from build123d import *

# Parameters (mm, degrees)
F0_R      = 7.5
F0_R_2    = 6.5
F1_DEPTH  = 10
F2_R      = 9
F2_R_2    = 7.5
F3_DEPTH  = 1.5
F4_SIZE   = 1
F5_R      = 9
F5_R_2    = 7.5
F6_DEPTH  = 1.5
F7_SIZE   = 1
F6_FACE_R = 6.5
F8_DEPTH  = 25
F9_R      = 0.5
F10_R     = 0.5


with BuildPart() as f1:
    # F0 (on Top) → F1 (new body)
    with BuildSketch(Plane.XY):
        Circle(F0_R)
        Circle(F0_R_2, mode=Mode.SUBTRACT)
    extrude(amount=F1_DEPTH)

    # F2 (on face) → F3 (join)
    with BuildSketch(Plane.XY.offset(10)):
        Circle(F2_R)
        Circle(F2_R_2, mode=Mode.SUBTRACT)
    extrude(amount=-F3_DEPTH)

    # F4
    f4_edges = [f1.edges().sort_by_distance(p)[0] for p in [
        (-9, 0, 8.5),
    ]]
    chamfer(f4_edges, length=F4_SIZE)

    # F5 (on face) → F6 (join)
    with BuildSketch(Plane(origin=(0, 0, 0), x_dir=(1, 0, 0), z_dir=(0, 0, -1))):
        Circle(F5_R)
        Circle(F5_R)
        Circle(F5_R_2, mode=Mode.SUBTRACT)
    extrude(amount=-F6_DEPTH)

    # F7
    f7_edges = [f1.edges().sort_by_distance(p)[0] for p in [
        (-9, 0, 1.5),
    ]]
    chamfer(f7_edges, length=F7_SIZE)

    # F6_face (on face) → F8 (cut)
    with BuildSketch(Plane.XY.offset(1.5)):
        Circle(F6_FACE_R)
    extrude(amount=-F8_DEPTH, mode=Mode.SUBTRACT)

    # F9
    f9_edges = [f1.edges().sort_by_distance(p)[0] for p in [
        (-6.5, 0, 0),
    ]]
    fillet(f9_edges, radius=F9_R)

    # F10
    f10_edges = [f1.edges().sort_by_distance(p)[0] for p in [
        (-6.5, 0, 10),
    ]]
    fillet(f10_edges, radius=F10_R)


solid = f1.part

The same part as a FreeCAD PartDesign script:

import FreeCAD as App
import Part
import Sketcher
Q = App.Units.Quantity


def edges_at(feature, points):
    """Names of the edges that pass closest to the given points."""
    edges = feature.Shape.Edges
    near = lambda p: min(range(len(edges)), key=lambda i: edges[i].distToShape(Part.Vertex(*p))[0])
    return sorted({f"Edge{near(p) + 1}" for p in points})

doc = App.newDocument("Part")
body = doc.addObject("PartDesign::Body", "Body")

sketch1 = body.newObject("Sketcher::SketchObject", "Sketch")
sketch1.AttachmentSupport = (doc.getObject("XY_Plane"), [""])
sketch1.MapMode = "FlatFace"
sketch1.addGeometry([
    Part.Circle(App.Vector(0, 0, 0), App.Vector(0, 0, 1), 7.5),
    Part.Circle(App.Vector(0, 0, 0), App.Vector(0, 0, 1), 6.5),
], False)
sketch1.addConstraint([
    Sketcher.Constraint("Coincident", 0, 3, -1, 1),
    Sketcher.Constraint("Coincident", 1, 3, -1, 1),
    Sketcher.Constraint("Diameter", 0, Q("15 mm")),
    Sketcher.Constraint("Diameter", 1, Q("13 mm")),
])
pad1 = body.newObject("PartDesign::Pad", "Pad")
pad1.Profile = sketch1
pad1.Length = 10

sketch2 = body.newObject("Sketcher::SketchObject", "Sketch001")
sketch2.AttachmentSupport = (doc.getObject("XY_Plane"), [""])
sketch2.MapMode = "FlatFace"
sketch2.AttachmentOffset = App.Placement(App.Vector(0, 0, 10), App.Rotation())
sketch2.addGeometry([
    Part.Circle(App.Vector(0, 0, 0), App.Vector(0, 0, 1), 9),
    Part.Circle(App.Vector(0, 0, 0), App.Vector(0, 0, 1), 7.5),
], False)
sketch2.addConstraint([
    Sketcher.Constraint("Coincident", 0, 3, -1, 1),
    Sketcher.Constraint("Coincident", 1, 3, -1, 1),
    Sketcher.Constraint("Diameter", 0, Q("18 mm")),
    Sketcher.Constraint("Diameter", 1, Q("15 mm")),
])
pad2 = body.newObject("PartDesign::Pad", "Pad001")
pad2.Profile = sketch2
pad2.Length = 1.5
pad2.Reversed = True
doc.recompute()

chamfer = body.newObject("PartDesign::Chamfer", "Chamfer")
chamfer.Base = (pad2, edges_at(pad2, [(-9, 0, 8.5)]))
chamfer.Size = 1

sketch3 = body.newObject("Sketcher::SketchObject", "Sketch002")
sketch3.AttachmentSupport = (doc.getObject("XY_Plane"), [""])
sketch3.MapMode = "FlatFace"
sketch3.addGeometry([
    Part.Circle(App.Vector(0, 0, 0), App.Vector(0, 0, 1), 9),
    Part.Circle(App.Vector(0, 0, 0), App.Vector(0, 0, 1), 7.5),
], False)
sketch3.addConstraint([
    Sketcher.Constraint("Coincident", 0, 3, -1, 1),
    Sketcher.Constraint("Coincident", 1, 3, -1, 1),
    Sketcher.Constraint("Diameter", 0, Q("18 mm")),
    Sketcher.Constraint("Diameter", 1, Q("15 mm")),
])
pad3 = body.newObject("PartDesign::Pad", "Pad002")
pad3.Profile = sketch3
pad3.Length = 1.5
doc.recompute()

chamfer2 = body.newObject("PartDesign::Chamfer", "Chamfer001")
chamfer2.Base = (pad3, edges_at(pad3, [(-9, 0, 1.5)]))
chamfer2.Size = 1

sketch4 = body.newObject("Sketcher::SketchObject", "Sketch003")
sketch4.AttachmentSupport = (doc.getObject("XY_Plane"), [""])
sketch4.MapMode = "FlatFace"
sketch4.AttachmentOffset = App.Placement(App.Vector(0, 0, 1.5), App.Rotation())
sketch4.addGeometry(Part.Circle(App.Vector(0, 0, 0), App.Vector(0, 0, 1), 6.5), False)
sketch4.addConstraint([
    Sketcher.Constraint("Coincident", 0, 3, -1, 1),
    Sketcher.Constraint("Diameter", 0, Q("13 mm")),
])
pocket1 = body.newObject("PartDesign::Pocket", "Pocket")
pocket1.Profile = sketch4
pocket1.Length = 25
doc.recompute()

fillet = body.newObject("PartDesign::Fillet", "Fillet")
fillet.Base = (pocket1, edges_at(pocket1, [(-6.5, 0, 0)]))
fillet.Radius = 0.5
doc.recompute()

fillet2 = body.newObject("PartDesign::Fillet", "Fillet001")
fillet2.Base = (fillet, edges_at(fillet, [(-6.5, 0, 10)]))
fillet2.Radius = 0.5

doc.recompute()
